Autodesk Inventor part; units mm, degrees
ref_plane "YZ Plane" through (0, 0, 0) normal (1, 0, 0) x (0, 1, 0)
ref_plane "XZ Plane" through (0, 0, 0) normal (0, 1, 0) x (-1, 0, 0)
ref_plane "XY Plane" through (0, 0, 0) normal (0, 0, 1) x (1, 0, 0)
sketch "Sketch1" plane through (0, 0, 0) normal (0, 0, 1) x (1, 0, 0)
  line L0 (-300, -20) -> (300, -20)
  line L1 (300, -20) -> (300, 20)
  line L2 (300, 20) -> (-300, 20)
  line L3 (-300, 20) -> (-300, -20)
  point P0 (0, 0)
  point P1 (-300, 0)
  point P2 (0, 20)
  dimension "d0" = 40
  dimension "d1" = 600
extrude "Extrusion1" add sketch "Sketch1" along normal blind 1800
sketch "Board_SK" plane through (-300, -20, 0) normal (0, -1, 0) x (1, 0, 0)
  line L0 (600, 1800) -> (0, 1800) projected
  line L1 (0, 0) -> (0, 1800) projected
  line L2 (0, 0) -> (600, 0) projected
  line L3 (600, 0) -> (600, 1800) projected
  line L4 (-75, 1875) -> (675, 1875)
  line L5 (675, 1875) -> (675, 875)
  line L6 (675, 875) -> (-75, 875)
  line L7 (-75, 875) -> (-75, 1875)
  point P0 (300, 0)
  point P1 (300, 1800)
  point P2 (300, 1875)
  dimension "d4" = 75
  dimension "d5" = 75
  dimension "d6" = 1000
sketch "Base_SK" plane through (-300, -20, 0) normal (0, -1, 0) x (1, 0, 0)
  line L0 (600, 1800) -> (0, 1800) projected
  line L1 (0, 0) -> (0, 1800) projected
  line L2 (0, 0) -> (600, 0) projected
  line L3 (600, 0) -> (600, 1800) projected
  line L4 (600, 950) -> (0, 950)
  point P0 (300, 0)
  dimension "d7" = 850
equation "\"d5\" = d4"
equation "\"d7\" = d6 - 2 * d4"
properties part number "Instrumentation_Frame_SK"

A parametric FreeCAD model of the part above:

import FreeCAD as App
import Part
import Sketcher
from FreeCAD import Vector

doc = App.newDocument("Part")
body = doc.addObject("PartDesign::Body", "Body")

sketch1 = body.newObject("Sketcher::SketchObject", "Sketch")
sketch1.AttachmentSupport = (doc.getObject("XY_Plane"), [""])
sketch1.MapMode = "FlatFace"
sketch1.addGeometry([
    Part.LineSegment(Vector(-300, 20, 0), Vector(-300, -20, 0)),
    Part.LineSegment(Vector(-300, -20, 0), Vector(300, -20, 0)),
    Part.LineSegment(Vector(300, -20, 0), Vector(300, 20, 0)),
    Part.LineSegment(Vector(300, 20, 0), Vector(-300, 20, 0)),
], False)
sketch1.addConstraint([
    Sketcher.Constraint("Coincident", 0, 2, 1, 1),
    Sketcher.Constraint("Coincident", 1, 2, 2, 1),
    Sketcher.Constraint("Coincident", 2, 2, 3, 1),
    Sketcher.Constraint("Coincident", 3, 2, 0, 1),
    Sketcher.Constraint("Vertical", 0),
    Sketcher.Constraint("Horizontal", 1),
    Sketcher.Constraint("Vertical", 2),
    Sketcher.Constraint("Horizontal", 3),
    Sketcher.Constraint("Symmetric", 0, 2, 2, 2, -1, 1),
    Sketcher.Constraint("DistanceX", 1, 1, 1, 2, 600.0),
    Sketcher.Constraint("DistanceY", 0, 2, 0, 1, 40.0),
])
pad1 = body.newObject("PartDesign::Pad", "Pad")
pad1.Profile = sketch1
pad1.Length = 1800

doc.recompute()
